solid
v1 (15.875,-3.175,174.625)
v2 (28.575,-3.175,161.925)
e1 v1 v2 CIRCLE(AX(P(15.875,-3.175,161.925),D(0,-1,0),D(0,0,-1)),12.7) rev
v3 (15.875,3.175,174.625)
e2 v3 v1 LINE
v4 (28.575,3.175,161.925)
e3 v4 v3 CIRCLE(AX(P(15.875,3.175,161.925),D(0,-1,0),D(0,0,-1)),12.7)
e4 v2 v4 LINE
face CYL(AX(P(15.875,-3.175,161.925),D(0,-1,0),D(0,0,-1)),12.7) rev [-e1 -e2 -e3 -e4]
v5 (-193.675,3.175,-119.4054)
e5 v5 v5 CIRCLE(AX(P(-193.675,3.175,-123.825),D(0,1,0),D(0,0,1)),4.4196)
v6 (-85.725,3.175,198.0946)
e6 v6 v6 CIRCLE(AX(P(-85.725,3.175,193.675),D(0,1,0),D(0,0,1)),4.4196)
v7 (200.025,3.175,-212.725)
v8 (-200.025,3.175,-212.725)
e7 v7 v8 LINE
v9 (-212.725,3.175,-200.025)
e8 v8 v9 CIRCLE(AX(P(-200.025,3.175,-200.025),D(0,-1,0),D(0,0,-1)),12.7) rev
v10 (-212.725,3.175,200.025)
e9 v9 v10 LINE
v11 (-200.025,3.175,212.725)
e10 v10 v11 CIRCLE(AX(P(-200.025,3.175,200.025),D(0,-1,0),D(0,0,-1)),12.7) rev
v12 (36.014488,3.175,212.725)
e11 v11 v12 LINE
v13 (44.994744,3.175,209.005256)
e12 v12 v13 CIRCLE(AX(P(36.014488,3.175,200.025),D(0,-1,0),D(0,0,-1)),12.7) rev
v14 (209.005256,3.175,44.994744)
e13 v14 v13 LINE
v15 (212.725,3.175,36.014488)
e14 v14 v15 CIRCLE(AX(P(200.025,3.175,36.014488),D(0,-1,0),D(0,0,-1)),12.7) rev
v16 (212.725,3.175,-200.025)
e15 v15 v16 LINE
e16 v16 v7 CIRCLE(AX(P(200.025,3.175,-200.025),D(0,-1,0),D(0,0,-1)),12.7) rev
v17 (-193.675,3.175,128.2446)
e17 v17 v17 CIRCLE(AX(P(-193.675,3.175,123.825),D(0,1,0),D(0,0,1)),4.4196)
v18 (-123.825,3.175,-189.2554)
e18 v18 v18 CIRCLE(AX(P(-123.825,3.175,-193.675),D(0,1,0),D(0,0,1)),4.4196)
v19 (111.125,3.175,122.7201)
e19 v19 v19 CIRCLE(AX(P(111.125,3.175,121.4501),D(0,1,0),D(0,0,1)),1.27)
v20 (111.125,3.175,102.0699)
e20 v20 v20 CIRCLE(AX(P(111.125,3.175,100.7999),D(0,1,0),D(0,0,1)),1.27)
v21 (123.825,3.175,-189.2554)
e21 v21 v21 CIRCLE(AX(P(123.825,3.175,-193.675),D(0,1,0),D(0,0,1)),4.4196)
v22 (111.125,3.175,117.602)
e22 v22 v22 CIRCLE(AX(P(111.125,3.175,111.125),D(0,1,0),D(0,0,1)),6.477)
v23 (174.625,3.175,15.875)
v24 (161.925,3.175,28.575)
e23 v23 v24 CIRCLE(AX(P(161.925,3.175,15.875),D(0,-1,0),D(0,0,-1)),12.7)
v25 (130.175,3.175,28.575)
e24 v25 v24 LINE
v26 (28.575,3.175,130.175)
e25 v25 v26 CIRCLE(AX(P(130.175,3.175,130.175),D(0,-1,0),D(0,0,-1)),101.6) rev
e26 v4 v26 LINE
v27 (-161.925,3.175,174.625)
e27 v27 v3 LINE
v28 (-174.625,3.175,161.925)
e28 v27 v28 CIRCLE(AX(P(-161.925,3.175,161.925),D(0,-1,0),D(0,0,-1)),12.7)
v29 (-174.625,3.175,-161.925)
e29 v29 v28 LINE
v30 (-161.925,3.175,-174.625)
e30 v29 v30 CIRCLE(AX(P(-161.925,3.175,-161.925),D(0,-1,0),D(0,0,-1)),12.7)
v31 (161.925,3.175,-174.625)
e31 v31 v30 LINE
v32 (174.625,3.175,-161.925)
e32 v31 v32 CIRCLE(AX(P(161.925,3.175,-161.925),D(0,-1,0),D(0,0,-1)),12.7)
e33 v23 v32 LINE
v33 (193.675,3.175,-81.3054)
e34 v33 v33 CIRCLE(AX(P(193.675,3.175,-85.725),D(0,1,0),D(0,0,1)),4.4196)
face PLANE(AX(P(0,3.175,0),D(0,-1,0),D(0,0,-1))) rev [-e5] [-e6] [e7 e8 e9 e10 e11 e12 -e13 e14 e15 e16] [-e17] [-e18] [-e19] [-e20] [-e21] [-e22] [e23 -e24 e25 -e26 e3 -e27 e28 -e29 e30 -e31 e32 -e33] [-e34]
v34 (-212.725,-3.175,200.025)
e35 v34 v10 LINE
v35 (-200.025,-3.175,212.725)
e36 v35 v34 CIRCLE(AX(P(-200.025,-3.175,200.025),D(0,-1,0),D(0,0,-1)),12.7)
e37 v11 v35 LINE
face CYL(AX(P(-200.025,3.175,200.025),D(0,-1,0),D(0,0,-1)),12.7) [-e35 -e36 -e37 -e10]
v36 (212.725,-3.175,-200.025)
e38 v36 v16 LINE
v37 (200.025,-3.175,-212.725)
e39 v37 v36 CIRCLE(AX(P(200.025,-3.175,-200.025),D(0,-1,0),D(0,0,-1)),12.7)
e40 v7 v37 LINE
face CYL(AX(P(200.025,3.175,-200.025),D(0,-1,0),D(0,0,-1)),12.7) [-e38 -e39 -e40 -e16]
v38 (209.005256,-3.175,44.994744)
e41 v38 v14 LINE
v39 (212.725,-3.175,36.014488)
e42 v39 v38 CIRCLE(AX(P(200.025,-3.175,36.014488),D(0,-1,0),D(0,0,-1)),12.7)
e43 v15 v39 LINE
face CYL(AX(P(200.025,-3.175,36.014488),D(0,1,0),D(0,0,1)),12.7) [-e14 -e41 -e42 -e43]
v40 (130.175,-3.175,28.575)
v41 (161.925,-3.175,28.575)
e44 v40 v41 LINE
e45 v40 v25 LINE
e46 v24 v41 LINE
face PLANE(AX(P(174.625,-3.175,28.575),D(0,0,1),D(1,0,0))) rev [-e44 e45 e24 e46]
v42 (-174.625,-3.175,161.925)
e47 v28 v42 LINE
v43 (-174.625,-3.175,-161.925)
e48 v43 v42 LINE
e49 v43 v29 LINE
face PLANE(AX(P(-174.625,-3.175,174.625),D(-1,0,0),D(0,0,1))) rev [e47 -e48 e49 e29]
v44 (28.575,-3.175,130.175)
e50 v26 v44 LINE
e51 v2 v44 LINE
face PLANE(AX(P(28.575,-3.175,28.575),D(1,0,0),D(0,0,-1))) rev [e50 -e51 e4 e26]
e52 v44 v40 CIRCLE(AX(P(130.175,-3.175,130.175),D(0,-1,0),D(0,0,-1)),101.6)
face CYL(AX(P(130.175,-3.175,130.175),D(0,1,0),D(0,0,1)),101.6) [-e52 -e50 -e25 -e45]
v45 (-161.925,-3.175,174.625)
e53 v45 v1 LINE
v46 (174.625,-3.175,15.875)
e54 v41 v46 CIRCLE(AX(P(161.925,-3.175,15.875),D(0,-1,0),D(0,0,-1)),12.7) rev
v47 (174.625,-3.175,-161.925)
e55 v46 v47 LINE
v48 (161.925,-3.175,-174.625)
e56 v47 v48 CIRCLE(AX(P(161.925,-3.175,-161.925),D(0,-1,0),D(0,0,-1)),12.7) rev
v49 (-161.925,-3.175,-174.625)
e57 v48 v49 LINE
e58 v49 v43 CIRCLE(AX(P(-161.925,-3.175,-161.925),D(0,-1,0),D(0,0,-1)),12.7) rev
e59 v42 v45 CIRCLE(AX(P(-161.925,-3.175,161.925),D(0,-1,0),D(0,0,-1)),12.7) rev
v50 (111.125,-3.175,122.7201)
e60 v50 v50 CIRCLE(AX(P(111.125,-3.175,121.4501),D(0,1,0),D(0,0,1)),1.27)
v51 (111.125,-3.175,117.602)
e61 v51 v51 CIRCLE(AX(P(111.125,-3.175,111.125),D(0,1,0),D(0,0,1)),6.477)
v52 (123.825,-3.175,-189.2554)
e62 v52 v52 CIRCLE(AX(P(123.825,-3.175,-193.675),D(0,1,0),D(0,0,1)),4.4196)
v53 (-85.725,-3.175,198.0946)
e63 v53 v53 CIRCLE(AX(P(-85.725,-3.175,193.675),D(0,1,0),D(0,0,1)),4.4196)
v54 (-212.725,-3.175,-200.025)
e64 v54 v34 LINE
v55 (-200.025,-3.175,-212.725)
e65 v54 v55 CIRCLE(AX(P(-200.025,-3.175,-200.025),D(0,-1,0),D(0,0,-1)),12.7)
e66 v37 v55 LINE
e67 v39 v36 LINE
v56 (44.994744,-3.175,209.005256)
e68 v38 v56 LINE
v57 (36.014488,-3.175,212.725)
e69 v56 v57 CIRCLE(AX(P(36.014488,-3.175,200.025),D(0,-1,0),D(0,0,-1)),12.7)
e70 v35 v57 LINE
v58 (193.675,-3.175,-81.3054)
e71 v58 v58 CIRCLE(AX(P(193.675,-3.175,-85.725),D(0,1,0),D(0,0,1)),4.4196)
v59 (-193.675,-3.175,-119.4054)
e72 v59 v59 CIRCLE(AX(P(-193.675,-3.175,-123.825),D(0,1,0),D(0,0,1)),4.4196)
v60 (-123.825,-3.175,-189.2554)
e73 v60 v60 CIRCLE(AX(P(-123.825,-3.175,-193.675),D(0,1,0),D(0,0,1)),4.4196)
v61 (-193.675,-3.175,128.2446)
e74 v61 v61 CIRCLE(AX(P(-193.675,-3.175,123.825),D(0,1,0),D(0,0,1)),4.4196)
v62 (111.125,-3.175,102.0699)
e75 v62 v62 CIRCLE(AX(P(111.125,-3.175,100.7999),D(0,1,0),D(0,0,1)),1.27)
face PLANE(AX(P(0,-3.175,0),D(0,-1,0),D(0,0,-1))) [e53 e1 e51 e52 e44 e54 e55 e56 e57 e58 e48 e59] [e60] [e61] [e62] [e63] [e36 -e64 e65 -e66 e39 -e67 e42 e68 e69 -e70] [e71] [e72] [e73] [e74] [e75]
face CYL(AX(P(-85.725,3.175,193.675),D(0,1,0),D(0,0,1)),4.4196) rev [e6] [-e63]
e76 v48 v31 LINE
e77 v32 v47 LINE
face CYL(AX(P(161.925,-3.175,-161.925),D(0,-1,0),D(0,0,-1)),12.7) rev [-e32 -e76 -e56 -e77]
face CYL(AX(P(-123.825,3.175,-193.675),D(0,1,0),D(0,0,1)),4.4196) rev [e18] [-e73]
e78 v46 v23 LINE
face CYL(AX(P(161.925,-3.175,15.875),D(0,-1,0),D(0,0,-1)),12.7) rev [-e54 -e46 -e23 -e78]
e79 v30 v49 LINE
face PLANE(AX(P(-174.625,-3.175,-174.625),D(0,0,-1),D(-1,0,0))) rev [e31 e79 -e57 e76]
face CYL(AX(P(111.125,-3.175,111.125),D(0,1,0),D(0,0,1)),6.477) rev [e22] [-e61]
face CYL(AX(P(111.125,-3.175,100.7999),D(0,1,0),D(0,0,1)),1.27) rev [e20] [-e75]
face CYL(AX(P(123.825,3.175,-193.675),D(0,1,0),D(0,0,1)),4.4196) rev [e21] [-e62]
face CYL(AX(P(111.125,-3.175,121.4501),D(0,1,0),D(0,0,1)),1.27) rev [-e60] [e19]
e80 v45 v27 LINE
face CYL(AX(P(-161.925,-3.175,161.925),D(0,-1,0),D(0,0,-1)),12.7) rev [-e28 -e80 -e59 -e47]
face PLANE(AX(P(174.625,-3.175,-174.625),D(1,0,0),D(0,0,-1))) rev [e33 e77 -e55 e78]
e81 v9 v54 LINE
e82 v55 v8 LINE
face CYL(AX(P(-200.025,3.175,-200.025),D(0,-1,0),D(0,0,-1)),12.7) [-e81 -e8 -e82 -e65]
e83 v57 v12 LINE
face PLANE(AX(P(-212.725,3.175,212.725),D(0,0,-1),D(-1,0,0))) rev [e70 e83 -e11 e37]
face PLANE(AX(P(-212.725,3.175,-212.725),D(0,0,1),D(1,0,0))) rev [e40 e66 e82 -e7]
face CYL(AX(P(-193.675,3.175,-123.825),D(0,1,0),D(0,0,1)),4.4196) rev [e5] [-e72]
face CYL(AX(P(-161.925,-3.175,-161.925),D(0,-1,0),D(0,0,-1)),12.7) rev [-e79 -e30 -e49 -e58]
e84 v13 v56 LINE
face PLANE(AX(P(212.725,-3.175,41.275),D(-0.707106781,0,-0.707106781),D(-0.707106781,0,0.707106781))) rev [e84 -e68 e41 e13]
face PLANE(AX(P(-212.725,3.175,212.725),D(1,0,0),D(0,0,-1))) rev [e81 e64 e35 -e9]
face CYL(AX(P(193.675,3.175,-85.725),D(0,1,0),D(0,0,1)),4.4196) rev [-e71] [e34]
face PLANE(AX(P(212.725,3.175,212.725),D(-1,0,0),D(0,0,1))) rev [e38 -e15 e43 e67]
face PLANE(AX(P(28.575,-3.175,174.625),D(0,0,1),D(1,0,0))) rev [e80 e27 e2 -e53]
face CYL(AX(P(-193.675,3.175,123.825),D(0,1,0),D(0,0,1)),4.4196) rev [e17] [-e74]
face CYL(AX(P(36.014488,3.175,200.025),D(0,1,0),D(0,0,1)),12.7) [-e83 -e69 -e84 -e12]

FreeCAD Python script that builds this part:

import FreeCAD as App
import Part
import Sketcher
Q = App.Units.Quantity


def edges_at(feature, points):
    """Names of the edges that pass closest to the given points."""
    edges = feature.Shape.Edges
    near = lambda p: min(range(len(edges)), key=lambda i: edges[i].distToShape(Part.Vertex(*p))[0])
    return sorted({f"Edge{near(p) + 1}" for p in points})

doc = App.newDocument("Part")
body = doc.addObject("PartDesign::Body", "Body")

# Sketch on XZ plane
sketch1 = body.newObject("Sketcher::SketchObject", "Sketch")
sketch1.AttachmentSupport = (doc.getObject("XZ_Plane"), [""])
sketch1.MapMode = "FlatFace"
sketch1.addGeometry([
    Part.LineSegment(App.Vector(-213, -213, 0), App.Vector(-213, 213, 0)),
    Part.LineSegment(App.Vector(-213, 213, 0), App.Vector(213, 213, 0)),
    Part.LineSegment(App.Vector(213, 213, 0), App.Vector(213, -213, 0)),
    Part.LineSegment(App.Vector(213, -213, 0), App.Vector(-213, -213, 0)),
], False)
sketch1.addConstraint([
    Sketcher.Constraint("Coincident", 0, 2, 1, 1),
    Sketcher.Constraint("Coincident", 1, 2, 2, 1),
    Sketcher.Constraint("Coincident", 2, 2, 3, 1),
    Sketcher.Constraint("Coincident", 3, 2, 0, 1),
    Sketcher.Constraint("Vertical", 0),
    Sketcher.Constraint("Horizontal", 1),
    Sketcher.Constraint("Vertical", 2),
    Sketcher.Constraint("Horizontal", 3),
    Sketcher.Constraint("Symmetric", 0, 2, 2, 2, -1, 1),
    Sketcher.Constraint("Equal", 3, 0),
    Sketcher.Constraint("DistanceX", 1, 1, 1, 2, Q("16.75 in")),
])
pad1 = body.newObject("PartDesign::Pad", "Pad")
pad1.Profile = sketch1
pad1.Length = Q("0.25 in")
pad1.Midplane = True

# Sketch on XZ plane
sketch2 = body.newObject("Sketcher::SketchObject", "Sketch001")
sketch2.AttachmentSupport = (doc.getObject("XZ_Plane"), [""])
sketch2.MapMode = "FlatFace"
sketch2.AttachmentOffset = App.Placement(App.Vector(0, 0, -0.125 * 25.4), App.Rotation())
sketch2.addGeometry([
    Part.LineSegment(App.Vector(213, 213, 0), App.Vector(213, 41, 0)),
    Part.LineSegment(App.Vector(213, 41, 0), App.Vector(41, 213, 0)),
    Part.LineSegment(App.Vector(41, 213, 0), App.Vector(213, 213, 0)),
], False)
sketch2.addConstraint([
    Sketcher.Constraint("Coincident", 0, 2, 1, 1),
    Sketcher.Constraint("Coincident", 1, 2, 2, 1),
    Sketcher.Constraint("Coincident", 2, 2, 0, 1),
    Sketcher.Constraint("Vertical", 0),
    Sketcher.Constraint("Horizontal", 2),
    Sketcher.Constraint("Equal", 2, 0),
    Sketcher.Constraint("DistanceX", 2, 1, 2, 2, Q("6.75 in")),
    Sketcher.Constraint("DistanceX", -1, 1, 0, 2, Q("8.375 in")),
    Sketcher.Constraint("DistanceY", -1, 1, 0, 2, Q("1.625 in")),
])
pocket1 = body.newObject("PartDesign::Pocket", "Pocket")
pocket1.Profile = sketch2
pocket1.Type = "ThroughAll"
pocket1.Reversed = True

# Sketch on XZ plane
sketch3 = body.newObject("Sketcher::SketchObject", "Sketch002")
sketch3.AttachmentSupport = (doc.getObject("XZ_Plane"), [""])
sketch3.MapMode = "FlatFace"
sketch3.AttachmentOffset = App.Placement(App.Vector(0, 0, -0.125 * 25.4), App.Rotation())
sketch3.addGeometry([
    Part.Circle(App.Vector(111.1, 111.1, 0), App.Vector(0, 0, 1), 6.5),
    Part.Circle(App.Vector(111.1, 100.8, 0), App.Vector(0, 0, 1), 1.3),
    Part.Circle(App.Vector(111.1, 121.5, 0), App.Vector(0, 0, 1), 1.3),
], False)
sketch3.addConstraint([
    Sketcher.Constraint("Equal", 1, 2),
    Sketcher.Constraint("Vertical", 0, 3, 1, 3),
    Sketcher.Constraint("Vertical", 1, 3, 2, 3),
    Sketcher.Constraint("Diameter", 1, Q("0.1 in")),
    Sketcher.Constraint("Diameter", 0, Q("0.51 in")),
    Sketcher.Constraint("DistanceX", -1, 1, 0, 3, Q("4.375 in")),
    Sketcher.Constraint("DistanceY", -1, 1, 0, 3, Q("4.375 in")),
    Sketcher.Constraint("DistanceY", 1, 3, 2, 3, Q("0.813 in")),
    Sketcher.Constraint("DistanceY", -1, 1, 1, 3, Q("3.9685 in")),
])
pocket2 = body.newObject("PartDesign::Pocket", "Pocket001")
pocket2.Profile = sketch3
pocket2.Type = "ThroughAll"
pocket2.Reversed = True

# Sketch on XZ plane
sketch4 = body.newObject("Sketcher::SketchObject", "Sketch003")
sketch4.AttachmentSupport = (doc.getObject("XZ_Plane"), [""])
sketch4.MapMode = "FlatFace"
sketch4.AttachmentOffset = App.Placement(App.Vector(0, 0, -0.125 * 25.4), App.Rotation())
sketch4.addGeometry([
    Part.Circle(App.Vector(-85.7, 193.7, 0), App.Vector(0, 0, 1), 4.4),  # 0
    Part.Circle(App.Vector(-193.7, 123.8, 0), App.Vector(0, 0, 1), 4.4),  # 1
    Part.Circle(App.Vector(-193.7, -123.8, 0), App.Vector(0, 0, 1), 4.4),  # 2
    Part.Circle(App.Vector(-123.8, -193.7, 0), App.Vector(0, 0, 1), 4.4),  # 3
    Part.Circle(App.Vector(123.8, -193.7, 0), App.Vector(0, 0, 1), 4.4),  # 4
    Part.Circle(App.Vector(193.7, -85.7, 0), App.Vector(0, 0, 1), 4.4),  # 5
], False)
sketch4.addConstraint([
    Sketcher.Constraint("Equal", 0, 1),
    Sketcher.Constraint("Equal", 1, 2),
    Sketcher.Constraint("Equal", 2, 3),
    Sketcher.Constraint("Equal", 3, 4),
    Sketcher.Constraint("Equal", 4, 5),
    Sketcher.Constraint("Symmetric", 3, 3, 4, 3, -2),
    Sketcher.Constraint("Symmetric", 1, 3, 2, 3, -1),
    Sketcher.Constraint("Diameter", 0, Q("0.348 in")),
    Sketcher.Constraint("DistanceX", 0, 3, 5, 3, Q("11 in")),
    Sketcher.Constraint("DistanceY", 5, 3, 0, 3, Q("11 in")),
    Sketcher.Constraint("DistanceY", 2, 3, 0, 3, Q("12.5 in")),
    Sketcher.Constraint("DistanceY", 3, 3, 1, 3, Q("12.5 in")),
    Sketcher.Constraint("DistanceX", 3, 3, 0, 3, Q("1.5 in")),
    Sketcher.Constraint("DistanceX", 2, 3, 4, 3, Q("12.5 in")),
    Sketcher.Constraint("DistanceX", 1, 3, 0, 3, Q("4.25 in")),
    Sketcher.Constraint("DistanceY", 1, 3, 0, 3, Q("2.75 in")),
])
doc.recompute()
hole = body.newObject("PartDesign::Hole", "Hole")
hole.Profile = sketch4
hole.ThreadType = "None"
hole.Diameter = Q("0.348 in")
hole.DepthType = "ThroughAll"
hole.Reversed = True

# Sketch on XZ plane
sketch5 = body.newObject("Sketcher::SketchObject", "Sketch004")
sketch5.AttachmentSupport = (doc.getObject("XZ_Plane"), [""])
sketch5.MapMode = "FlatFace"
sketch5.AttachmentOffset = App.Placement(App.Vector(0, 0, -0.125 * 25.4), App.Rotation())
sketch5.addGeometry([
    Part.LineSegment(App.Vector(175, 29, 0), App.Vector(175, -175, 0)),  # 0
    Part.LineSegment(App.Vector(175, -175, 0), App.Vector(-175, -175, 0)),  # 1
    Part.LineSegment(App.Vector(-175, -175, 0), App.Vector(-175, 175, 0)),  # 2
    Part.LineSegment(App.Vector(-175, 175, 0), App.Vector(29, 175, 0)),  # 3
    Part.LineSegment(App.Vector(29, 175, 0), App.Vector(29, 29, 0)),  # 4
    Part.LineSegment(App.Vector(29, 29, 0), App.Vector(175, 29, 0)),  # 5
], False)
sketch5.addConstraint([
    Sketcher.Constraint("Coincident", 0, 2, 1, 1),
    Sketcher.Constraint("Coincident", 1, 2, 2, 1),
    Sketcher.Constraint("Coincident", 2, 2, 3, 1),
    Sketcher.Constraint("Coincident", 3, 2, 4, 1),
    Sketcher.Constraint("Coincident", 4, 2, 5, 1),
    Sketcher.Constraint("Coincident", 5, 2, 0, 1),
    Sketcher.Constraint("Vertical", 0),
    Sketcher.Constraint("Horizontal", 1),
    Sketcher.Constraint("Vertical", 2),
    Sketcher.Constraint("Horizontal", 3),
    Sketcher.Constraint("Vertical", 4),
    Sketcher.Constraint("Horizontal", 5),
    Sketcher.Constraint("Symmetric", 0, 2, 2, 2, -1, 1),
    Sketcher.Constraint("Equal", 3, 0),
    Sketcher.Constraint("Equal", 1, 2),
    Sketcher.Constraint("DistanceX", 3, 1, 3, 2, Q("8 in")),
    Sketcher.Constraint("DistanceX", 1, 2, 1, 1, Q("13.75 in")),
])
pocket3 = body.newObject("PartDesign::Pocket", "Pocket002")
pocket3.Profile = sketch5
pocket3.Type = "ThroughAll"
pocket3.Reversed = True
doc.recompute()

fillet = body.newObject("PartDesign::Fillet", "Fillet")
fillet.Base = (pocket3, edges_at(pocket3, [
    (41.275, 0, 212.725),
    (212.725, 0, 41.275),
    (-212.725, 0, 212.725),
    (-212.725, 0, -212.725),
    (-174.625, 0, -174.625),
    (212.725, 0, -212.725),
    (174.625, 0, -174.625),
    (174.625, 0, 28.575),
    (28.575, 0, 174.625),
    (-174.625, 0, 174.625),
]))
fillet.Radius = Q("0.5 in")
doc.recompute()

fillet2 = body.newObject("PartDesign::Fillet", "Fillet001")
fillet2.Base = (fillet, edges_at(fillet, [(28.575, 0, 28.575)]))
fillet2.Radius = Q("4 in")

doc.recompute()
